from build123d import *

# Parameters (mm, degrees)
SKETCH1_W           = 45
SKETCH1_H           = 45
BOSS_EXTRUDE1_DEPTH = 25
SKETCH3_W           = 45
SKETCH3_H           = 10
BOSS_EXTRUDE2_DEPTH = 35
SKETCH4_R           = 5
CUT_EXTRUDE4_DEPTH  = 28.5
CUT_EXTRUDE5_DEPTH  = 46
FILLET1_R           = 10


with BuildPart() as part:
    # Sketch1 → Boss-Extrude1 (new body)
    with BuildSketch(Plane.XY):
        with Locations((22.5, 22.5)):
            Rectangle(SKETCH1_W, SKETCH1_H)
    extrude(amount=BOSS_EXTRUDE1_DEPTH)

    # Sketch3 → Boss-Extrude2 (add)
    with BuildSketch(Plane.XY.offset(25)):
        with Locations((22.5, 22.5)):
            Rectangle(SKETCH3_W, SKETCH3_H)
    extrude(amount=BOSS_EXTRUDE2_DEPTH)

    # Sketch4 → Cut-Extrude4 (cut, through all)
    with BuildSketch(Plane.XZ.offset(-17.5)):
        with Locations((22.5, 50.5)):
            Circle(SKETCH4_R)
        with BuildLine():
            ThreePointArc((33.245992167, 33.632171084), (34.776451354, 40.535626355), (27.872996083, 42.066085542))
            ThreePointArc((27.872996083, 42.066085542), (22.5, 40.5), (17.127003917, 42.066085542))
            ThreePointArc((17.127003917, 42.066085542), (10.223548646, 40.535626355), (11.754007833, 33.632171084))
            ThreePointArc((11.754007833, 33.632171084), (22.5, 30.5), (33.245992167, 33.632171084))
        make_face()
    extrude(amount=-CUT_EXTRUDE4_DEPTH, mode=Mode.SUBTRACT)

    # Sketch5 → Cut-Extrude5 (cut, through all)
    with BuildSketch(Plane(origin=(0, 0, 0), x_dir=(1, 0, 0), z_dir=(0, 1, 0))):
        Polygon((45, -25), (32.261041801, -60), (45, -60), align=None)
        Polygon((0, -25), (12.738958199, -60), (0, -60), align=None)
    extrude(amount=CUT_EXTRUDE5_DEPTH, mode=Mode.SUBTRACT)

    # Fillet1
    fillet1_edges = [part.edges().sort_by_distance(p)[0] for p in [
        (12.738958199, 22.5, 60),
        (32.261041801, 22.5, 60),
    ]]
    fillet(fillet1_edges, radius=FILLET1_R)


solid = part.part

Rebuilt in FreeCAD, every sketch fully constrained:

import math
import FreeCAD as App
import Part
import Sketcher
from FreeCAD import Vector
Q = App.Units.Quantity


def edges_at(feature, points):
    """Names of the edges that pass closest to the given points."""
    edges = feature.Shape.Edges
    near = lambda p: min(range(len(edges)), key=lambda i: edges[i].distToShape(Part.Vertex(*p))[0])
    return sorted({f"Edge{near(p) + 1}" for p in points})


def add_polygon(sketch, points):
    """Adds a closed chain of lines whose ends are joined by coincident constraints."""
    first, n = sketch.GeometryCount, len(points)
    for a, b in zip(points, points[1:] + points[:1]):
        sketch.addGeometry(Part.LineSegment(App.Vector(*a, 0), App.Vector(*b, 0)), False)
    for i in range(n):
        sketch.addConstraint(Sketcher.Constraint("Coincident", first + i, 2, first + (i + 1) % n, 1))

doc = App.newDocument("Part")
body = doc.addObject("PartDesign::Body", "Body")

# Sketch on XY plane
sketch1 = body.newObject("Sketcher::SketchObject", "Sketch")
sketch1.AttachmentSupport = (doc.getObject("XY_Plane"), [""])
sketch1.MapMode = "FlatFace"
add_polygon(sketch1, [(0, 45), (0, 0), (45, 0), (45, 45)])  # lines 0-3
sketch1.addConstraint(Sketcher.Constraint("Vertical", 0))
sketch1.addConstraint(Sketcher.Constraint("Horizontal", 1))
sketch1.addConstraint(Sketcher.Constraint("Vertical", 2))
sketch1.addConstraint(Sketcher.Constraint("Horizontal", 3))
sketch1.addConstraint(Sketcher.Constraint("Coincident", 0, 2, -1, 1))
sketch1.addConstraint(Sketcher.Constraint("Equal", 3, 0))
sketch1.addConstraint(Sketcher.Constraint("DistanceX", 1, 1, 1, 2, 45.0))
pad1 = body.newObject("PartDesign::Pad", "Pad")
pad1.Profile = sketch1
pad1.Length = 25

# Sketch on XY plane
sketch2 = body.newObject("Sketcher::SketchObject", "Sketch001")
sketch2.AttachmentSupport = (doc.getObject("XY_Plane"), [""])
sketch2.MapMode = "FlatFace"
sketch2.AttachmentOffset = App.Placement(Vector(0, 0, 25), App.Rotation())
add_polygon(sketch2, [(0, 28), (0, 18), (45, 18), (45, 28)])  # lines 0-3
sketch2.addConstraint(Sketcher.Constraint("Vertical", 0))
sketch2.addConstraint(Sketcher.Constraint("Horizontal", 1))
sketch2.addConstraint(Sketcher.Constraint("Vertical", 2))
sketch2.addConstraint(Sketcher.Constraint("Horizontal", 3))
sketch2.addConstraint(Sketcher.Constraint("PointOnObject", 0, 2, -2))
sketch2.addConstraint(Sketcher.Constraint("DistanceX", 1, 1, 1, 2, 45.0))
sketch2.addConstraint(Sketcher.Constraint("DistanceY", 0, 2, 0, 1, 10.0))
sketch2.addConstraint(Sketcher.Constraint("DistanceY", -1, 1, 0, 2, 17.5))
pad2 = body.newObject("PartDesign::Pad", "Pad001")
pad2.Profile = sketch2
pad2.Length = 35

# Sketch on XZ plane
sketch3 = body.newObject("Sketcher::SketchObject", "Sketch002")
sketch3.AttachmentSupport = (doc.getObject("XZ_Plane"), [""])
sketch3.MapMode = "FlatFace"
sketch3.AttachmentOffset = App.Placement(Vector(0, 0, -17.5), App.Rotation())
sketch3.addGeometry(Part.Circle(Vector(22, 50, 0), Vector(0, 0, 1), 5), False)
sketch3.addGeometry(Part.ArcOfCircle(Part.Circle(Vector(31, 38, 0), Vector(0, 0, 1), 5), math.radians(-57), math.radians(123)), False)
sketch3.addGeometry(Part.ArcOfCircle(Part.Circle(Vector(22, 50, 0), Vector(0, 0, 1), 10), math.radians(-123), math.radians(-57)), False)
sketch3.addGeometry(Part.ArcOfCircle(Part.Circle(Vector(14, 38, 0), Vector(0, 0, 1), 5), math.radians(57), math.radians(237)), False)
sketch3.addGeometry(Part.ArcOfCircle(Part.Circle(Vector(22, 50, 0), Vector(0, 0, 1), 20), math.radians(-123), math.radians(-57)), False)
sketch3.addConstraint(Sketcher.Constraint("Tangent", 1, 2, 2, 2))
sketch3.addConstraint(Sketcher.Constraint("Tangent", 2, 1, 3, 1))
sketch3.addConstraint(Sketcher.Constraint("Tangent", 3, 2, 4, 1))
sketch3.addConstraint(Sketcher.Constraint("Tangent", 4, 2, 1, 1))
sketch3.addConstraint(Sketcher.Constraint("Coincident", 2, 3, 0, 3))
sketch3.addConstraint(Sketcher.Constraint("Coincident", 4, 3, 0, 3))
sketch3.addConstraint(Sketcher.Constraint("Equal", 0, 1))
sketch3.addConstraint(Sketcher.Constraint("Horizontal", 1, 3, 3, 3))
sketch3.addConstraint(Sketcher.Constraint("Diameter", 0, 10.0))
sketch3.addConstraint(Sketcher.Constraint("Radius", 2, 10.0))
sketch3.addConstraint(Sketcher.Constraint("DistanceX", -1, 1, 0, 3, 22.5))
sketch3.addConstraint(Sketcher.Constraint("DistanceY", -1, 1, 0, 3, 50.5))
sketch3.addConstraint(Sketcher.Constraint("DistanceX", 1, 2, 1, 3, 2.686498))
pocket1 = body.newObject("PartDesign::Pocket", "Pocket")
pocket1.Profile = sketch3
pocket1.Type = "ThroughAll"

# Sketch on XZ plane
sketch4 = body.newObject("Sketcher::SketchObject", "Sketch003")
sketch4.AttachmentSupport = (doc.getObject("XZ_Plane"), [""])
sketch4.MapMode = "FlatFace"
add_polygon(sketch4, [(45, 25), (32, 60), (45, 60)])  # lines 0-2
add_polygon(sketch4, [(13, 60), (0, 25), (0, 60)])  # lines 3-5
sketch4.addConstraint(Sketcher.Constraint("Horizontal", 1))
sketch4.addConstraint(Sketcher.Constraint("Vertical", 2))
sketch4.addConstraint(Sketcher.Constraint("Vertical", 4))
sketch4.addConstraint(Sketcher.Constraint("Horizontal", 5))
sketch4.addConstraint(Sketcher.Constraint("PointOnObject", 3, 2, -2))
sketch4.addConstraint(Sketcher.Constraint("Horizontal", 2, 2, 3, 2))
sketch4.addConstraint(Sketcher.Constraint("Horizontal", 1, 2, 4, 2))
sketch4.addConstraint(Sketcher.Constraint("Equal", 1, 5))
sketch4.addConstraint(Sketcher.Constraint("DistanceY", 2, 2, 2, 1, 35.0))
sketch4.addConstraint(Sketcher.Constraint("Angle", 0, Q("110 deg")))
sketch4.addConstraint(Sketcher.Constraint("DistanceY", -1, 1, 0, 2, 60.0))
sketch4.addConstraint(Sketcher.Constraint("DistanceX", -1, 1, 1, 2, 45.0))
pocket2 = body.newObject("PartDesign::Pocket", "Pocket001")
pocket2.Profile = sketch4
pocket2.Type = "ThroughAll"
doc.recompute()

fillet = body.newObject("PartDesign::Fillet", "Fillet")
fillet.Base = (pocket2, edges_at(pocket2, [(12.739, 22.5, 60), (32.261, 22.5, 60)]))
fillet.Radius = 10

doc.recompute()
